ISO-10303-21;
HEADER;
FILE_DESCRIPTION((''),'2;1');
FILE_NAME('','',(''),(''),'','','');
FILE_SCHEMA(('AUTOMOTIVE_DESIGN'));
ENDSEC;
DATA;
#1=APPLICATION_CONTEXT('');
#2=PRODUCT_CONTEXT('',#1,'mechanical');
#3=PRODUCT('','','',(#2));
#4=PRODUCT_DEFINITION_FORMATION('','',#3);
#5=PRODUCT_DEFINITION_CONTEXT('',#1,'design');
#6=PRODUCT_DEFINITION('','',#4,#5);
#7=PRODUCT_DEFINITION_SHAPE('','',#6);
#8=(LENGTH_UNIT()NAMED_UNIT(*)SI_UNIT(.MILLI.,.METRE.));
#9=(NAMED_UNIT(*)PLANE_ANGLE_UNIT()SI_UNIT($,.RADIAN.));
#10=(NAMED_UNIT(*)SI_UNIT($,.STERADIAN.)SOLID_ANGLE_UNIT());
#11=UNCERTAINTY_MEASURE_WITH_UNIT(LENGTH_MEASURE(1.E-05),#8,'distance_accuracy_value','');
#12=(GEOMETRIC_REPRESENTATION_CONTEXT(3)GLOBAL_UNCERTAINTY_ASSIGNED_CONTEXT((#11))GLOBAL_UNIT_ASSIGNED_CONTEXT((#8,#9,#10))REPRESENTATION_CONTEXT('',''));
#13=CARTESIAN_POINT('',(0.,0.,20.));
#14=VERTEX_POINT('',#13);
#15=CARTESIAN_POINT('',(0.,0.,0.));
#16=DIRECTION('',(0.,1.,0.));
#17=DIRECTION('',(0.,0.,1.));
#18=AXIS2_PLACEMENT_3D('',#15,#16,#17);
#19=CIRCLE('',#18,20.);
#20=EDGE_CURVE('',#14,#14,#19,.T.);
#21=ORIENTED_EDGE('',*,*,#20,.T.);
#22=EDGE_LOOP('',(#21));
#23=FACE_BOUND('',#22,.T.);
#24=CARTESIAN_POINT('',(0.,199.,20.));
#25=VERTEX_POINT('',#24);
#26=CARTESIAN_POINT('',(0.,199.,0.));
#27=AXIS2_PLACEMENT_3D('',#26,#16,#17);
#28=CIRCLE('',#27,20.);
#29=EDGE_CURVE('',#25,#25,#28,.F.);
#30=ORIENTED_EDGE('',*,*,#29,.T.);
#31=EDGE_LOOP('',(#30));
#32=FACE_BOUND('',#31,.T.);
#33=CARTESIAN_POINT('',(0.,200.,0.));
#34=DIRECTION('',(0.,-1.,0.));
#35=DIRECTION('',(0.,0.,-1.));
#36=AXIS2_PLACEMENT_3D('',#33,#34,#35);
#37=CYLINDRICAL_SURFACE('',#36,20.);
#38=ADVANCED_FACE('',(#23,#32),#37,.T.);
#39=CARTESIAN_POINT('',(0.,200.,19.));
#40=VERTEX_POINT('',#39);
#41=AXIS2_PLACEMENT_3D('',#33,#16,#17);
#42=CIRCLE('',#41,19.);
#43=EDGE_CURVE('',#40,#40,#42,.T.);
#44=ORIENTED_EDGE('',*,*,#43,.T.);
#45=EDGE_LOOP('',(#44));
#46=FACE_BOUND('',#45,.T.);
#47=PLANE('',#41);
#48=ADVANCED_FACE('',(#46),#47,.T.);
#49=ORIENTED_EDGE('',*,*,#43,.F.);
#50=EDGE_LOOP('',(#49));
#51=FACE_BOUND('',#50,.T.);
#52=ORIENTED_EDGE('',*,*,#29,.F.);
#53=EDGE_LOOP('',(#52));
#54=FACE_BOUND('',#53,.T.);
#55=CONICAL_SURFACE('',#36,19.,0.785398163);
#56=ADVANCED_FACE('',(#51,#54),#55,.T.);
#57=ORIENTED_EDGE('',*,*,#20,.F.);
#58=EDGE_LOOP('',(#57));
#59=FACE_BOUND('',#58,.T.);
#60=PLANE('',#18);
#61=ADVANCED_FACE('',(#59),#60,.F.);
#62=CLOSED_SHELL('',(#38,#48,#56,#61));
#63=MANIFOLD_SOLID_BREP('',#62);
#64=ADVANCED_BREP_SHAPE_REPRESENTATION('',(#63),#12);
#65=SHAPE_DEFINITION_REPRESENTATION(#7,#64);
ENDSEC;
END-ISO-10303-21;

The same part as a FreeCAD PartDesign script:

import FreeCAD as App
import Part
import Sketcher
from FreeCAD import Vector


def edges_at(feature, points):
    """Names of the edges that pass closest to the given points."""
    edges = feature.Shape.Edges
    near = lambda p: min(range(len(edges)), key=lambda i: edges[i].distToShape(Part.Vertex(*p))[0])
    return sorted({f"Edge{near(p) + 1}" for p in points})

doc = App.newDocument("Part")
body = doc.addObject("PartDesign::Body", "Body")

# Sketch on XZ plane
sketch1 = body.newObject("Sketcher::SketchObject", "Sketch")
sketch1.AttachmentSupport = (doc.getObject("XZ_Plane"), [""])
sketch1.MapMode = "FlatFace"
sketch1.addGeometry(Part.Circle(Vector(0, 0, 0), Vector(0, 0, 1), 20), False)
sketch1.addConstraint([
    Sketcher.Constraint("Coincident", 0, 3, -1, 1),
    Sketcher.Constraint("Diameter", 0, 40.0),
])
pad1 = body.newObject("PartDesign::Pad", "Pad")
pad1.Profile = sketch1
pad1.Length = 200
pad1.Reversed = True
doc.recompute()

chamfer = body.newObject("PartDesign::Chamfer", "Chamfer")
chamfer.Base = (pad1, edges_at(pad1, [(-20, 200, 0)]))
chamfer.Size = 1

doc.recompute()
